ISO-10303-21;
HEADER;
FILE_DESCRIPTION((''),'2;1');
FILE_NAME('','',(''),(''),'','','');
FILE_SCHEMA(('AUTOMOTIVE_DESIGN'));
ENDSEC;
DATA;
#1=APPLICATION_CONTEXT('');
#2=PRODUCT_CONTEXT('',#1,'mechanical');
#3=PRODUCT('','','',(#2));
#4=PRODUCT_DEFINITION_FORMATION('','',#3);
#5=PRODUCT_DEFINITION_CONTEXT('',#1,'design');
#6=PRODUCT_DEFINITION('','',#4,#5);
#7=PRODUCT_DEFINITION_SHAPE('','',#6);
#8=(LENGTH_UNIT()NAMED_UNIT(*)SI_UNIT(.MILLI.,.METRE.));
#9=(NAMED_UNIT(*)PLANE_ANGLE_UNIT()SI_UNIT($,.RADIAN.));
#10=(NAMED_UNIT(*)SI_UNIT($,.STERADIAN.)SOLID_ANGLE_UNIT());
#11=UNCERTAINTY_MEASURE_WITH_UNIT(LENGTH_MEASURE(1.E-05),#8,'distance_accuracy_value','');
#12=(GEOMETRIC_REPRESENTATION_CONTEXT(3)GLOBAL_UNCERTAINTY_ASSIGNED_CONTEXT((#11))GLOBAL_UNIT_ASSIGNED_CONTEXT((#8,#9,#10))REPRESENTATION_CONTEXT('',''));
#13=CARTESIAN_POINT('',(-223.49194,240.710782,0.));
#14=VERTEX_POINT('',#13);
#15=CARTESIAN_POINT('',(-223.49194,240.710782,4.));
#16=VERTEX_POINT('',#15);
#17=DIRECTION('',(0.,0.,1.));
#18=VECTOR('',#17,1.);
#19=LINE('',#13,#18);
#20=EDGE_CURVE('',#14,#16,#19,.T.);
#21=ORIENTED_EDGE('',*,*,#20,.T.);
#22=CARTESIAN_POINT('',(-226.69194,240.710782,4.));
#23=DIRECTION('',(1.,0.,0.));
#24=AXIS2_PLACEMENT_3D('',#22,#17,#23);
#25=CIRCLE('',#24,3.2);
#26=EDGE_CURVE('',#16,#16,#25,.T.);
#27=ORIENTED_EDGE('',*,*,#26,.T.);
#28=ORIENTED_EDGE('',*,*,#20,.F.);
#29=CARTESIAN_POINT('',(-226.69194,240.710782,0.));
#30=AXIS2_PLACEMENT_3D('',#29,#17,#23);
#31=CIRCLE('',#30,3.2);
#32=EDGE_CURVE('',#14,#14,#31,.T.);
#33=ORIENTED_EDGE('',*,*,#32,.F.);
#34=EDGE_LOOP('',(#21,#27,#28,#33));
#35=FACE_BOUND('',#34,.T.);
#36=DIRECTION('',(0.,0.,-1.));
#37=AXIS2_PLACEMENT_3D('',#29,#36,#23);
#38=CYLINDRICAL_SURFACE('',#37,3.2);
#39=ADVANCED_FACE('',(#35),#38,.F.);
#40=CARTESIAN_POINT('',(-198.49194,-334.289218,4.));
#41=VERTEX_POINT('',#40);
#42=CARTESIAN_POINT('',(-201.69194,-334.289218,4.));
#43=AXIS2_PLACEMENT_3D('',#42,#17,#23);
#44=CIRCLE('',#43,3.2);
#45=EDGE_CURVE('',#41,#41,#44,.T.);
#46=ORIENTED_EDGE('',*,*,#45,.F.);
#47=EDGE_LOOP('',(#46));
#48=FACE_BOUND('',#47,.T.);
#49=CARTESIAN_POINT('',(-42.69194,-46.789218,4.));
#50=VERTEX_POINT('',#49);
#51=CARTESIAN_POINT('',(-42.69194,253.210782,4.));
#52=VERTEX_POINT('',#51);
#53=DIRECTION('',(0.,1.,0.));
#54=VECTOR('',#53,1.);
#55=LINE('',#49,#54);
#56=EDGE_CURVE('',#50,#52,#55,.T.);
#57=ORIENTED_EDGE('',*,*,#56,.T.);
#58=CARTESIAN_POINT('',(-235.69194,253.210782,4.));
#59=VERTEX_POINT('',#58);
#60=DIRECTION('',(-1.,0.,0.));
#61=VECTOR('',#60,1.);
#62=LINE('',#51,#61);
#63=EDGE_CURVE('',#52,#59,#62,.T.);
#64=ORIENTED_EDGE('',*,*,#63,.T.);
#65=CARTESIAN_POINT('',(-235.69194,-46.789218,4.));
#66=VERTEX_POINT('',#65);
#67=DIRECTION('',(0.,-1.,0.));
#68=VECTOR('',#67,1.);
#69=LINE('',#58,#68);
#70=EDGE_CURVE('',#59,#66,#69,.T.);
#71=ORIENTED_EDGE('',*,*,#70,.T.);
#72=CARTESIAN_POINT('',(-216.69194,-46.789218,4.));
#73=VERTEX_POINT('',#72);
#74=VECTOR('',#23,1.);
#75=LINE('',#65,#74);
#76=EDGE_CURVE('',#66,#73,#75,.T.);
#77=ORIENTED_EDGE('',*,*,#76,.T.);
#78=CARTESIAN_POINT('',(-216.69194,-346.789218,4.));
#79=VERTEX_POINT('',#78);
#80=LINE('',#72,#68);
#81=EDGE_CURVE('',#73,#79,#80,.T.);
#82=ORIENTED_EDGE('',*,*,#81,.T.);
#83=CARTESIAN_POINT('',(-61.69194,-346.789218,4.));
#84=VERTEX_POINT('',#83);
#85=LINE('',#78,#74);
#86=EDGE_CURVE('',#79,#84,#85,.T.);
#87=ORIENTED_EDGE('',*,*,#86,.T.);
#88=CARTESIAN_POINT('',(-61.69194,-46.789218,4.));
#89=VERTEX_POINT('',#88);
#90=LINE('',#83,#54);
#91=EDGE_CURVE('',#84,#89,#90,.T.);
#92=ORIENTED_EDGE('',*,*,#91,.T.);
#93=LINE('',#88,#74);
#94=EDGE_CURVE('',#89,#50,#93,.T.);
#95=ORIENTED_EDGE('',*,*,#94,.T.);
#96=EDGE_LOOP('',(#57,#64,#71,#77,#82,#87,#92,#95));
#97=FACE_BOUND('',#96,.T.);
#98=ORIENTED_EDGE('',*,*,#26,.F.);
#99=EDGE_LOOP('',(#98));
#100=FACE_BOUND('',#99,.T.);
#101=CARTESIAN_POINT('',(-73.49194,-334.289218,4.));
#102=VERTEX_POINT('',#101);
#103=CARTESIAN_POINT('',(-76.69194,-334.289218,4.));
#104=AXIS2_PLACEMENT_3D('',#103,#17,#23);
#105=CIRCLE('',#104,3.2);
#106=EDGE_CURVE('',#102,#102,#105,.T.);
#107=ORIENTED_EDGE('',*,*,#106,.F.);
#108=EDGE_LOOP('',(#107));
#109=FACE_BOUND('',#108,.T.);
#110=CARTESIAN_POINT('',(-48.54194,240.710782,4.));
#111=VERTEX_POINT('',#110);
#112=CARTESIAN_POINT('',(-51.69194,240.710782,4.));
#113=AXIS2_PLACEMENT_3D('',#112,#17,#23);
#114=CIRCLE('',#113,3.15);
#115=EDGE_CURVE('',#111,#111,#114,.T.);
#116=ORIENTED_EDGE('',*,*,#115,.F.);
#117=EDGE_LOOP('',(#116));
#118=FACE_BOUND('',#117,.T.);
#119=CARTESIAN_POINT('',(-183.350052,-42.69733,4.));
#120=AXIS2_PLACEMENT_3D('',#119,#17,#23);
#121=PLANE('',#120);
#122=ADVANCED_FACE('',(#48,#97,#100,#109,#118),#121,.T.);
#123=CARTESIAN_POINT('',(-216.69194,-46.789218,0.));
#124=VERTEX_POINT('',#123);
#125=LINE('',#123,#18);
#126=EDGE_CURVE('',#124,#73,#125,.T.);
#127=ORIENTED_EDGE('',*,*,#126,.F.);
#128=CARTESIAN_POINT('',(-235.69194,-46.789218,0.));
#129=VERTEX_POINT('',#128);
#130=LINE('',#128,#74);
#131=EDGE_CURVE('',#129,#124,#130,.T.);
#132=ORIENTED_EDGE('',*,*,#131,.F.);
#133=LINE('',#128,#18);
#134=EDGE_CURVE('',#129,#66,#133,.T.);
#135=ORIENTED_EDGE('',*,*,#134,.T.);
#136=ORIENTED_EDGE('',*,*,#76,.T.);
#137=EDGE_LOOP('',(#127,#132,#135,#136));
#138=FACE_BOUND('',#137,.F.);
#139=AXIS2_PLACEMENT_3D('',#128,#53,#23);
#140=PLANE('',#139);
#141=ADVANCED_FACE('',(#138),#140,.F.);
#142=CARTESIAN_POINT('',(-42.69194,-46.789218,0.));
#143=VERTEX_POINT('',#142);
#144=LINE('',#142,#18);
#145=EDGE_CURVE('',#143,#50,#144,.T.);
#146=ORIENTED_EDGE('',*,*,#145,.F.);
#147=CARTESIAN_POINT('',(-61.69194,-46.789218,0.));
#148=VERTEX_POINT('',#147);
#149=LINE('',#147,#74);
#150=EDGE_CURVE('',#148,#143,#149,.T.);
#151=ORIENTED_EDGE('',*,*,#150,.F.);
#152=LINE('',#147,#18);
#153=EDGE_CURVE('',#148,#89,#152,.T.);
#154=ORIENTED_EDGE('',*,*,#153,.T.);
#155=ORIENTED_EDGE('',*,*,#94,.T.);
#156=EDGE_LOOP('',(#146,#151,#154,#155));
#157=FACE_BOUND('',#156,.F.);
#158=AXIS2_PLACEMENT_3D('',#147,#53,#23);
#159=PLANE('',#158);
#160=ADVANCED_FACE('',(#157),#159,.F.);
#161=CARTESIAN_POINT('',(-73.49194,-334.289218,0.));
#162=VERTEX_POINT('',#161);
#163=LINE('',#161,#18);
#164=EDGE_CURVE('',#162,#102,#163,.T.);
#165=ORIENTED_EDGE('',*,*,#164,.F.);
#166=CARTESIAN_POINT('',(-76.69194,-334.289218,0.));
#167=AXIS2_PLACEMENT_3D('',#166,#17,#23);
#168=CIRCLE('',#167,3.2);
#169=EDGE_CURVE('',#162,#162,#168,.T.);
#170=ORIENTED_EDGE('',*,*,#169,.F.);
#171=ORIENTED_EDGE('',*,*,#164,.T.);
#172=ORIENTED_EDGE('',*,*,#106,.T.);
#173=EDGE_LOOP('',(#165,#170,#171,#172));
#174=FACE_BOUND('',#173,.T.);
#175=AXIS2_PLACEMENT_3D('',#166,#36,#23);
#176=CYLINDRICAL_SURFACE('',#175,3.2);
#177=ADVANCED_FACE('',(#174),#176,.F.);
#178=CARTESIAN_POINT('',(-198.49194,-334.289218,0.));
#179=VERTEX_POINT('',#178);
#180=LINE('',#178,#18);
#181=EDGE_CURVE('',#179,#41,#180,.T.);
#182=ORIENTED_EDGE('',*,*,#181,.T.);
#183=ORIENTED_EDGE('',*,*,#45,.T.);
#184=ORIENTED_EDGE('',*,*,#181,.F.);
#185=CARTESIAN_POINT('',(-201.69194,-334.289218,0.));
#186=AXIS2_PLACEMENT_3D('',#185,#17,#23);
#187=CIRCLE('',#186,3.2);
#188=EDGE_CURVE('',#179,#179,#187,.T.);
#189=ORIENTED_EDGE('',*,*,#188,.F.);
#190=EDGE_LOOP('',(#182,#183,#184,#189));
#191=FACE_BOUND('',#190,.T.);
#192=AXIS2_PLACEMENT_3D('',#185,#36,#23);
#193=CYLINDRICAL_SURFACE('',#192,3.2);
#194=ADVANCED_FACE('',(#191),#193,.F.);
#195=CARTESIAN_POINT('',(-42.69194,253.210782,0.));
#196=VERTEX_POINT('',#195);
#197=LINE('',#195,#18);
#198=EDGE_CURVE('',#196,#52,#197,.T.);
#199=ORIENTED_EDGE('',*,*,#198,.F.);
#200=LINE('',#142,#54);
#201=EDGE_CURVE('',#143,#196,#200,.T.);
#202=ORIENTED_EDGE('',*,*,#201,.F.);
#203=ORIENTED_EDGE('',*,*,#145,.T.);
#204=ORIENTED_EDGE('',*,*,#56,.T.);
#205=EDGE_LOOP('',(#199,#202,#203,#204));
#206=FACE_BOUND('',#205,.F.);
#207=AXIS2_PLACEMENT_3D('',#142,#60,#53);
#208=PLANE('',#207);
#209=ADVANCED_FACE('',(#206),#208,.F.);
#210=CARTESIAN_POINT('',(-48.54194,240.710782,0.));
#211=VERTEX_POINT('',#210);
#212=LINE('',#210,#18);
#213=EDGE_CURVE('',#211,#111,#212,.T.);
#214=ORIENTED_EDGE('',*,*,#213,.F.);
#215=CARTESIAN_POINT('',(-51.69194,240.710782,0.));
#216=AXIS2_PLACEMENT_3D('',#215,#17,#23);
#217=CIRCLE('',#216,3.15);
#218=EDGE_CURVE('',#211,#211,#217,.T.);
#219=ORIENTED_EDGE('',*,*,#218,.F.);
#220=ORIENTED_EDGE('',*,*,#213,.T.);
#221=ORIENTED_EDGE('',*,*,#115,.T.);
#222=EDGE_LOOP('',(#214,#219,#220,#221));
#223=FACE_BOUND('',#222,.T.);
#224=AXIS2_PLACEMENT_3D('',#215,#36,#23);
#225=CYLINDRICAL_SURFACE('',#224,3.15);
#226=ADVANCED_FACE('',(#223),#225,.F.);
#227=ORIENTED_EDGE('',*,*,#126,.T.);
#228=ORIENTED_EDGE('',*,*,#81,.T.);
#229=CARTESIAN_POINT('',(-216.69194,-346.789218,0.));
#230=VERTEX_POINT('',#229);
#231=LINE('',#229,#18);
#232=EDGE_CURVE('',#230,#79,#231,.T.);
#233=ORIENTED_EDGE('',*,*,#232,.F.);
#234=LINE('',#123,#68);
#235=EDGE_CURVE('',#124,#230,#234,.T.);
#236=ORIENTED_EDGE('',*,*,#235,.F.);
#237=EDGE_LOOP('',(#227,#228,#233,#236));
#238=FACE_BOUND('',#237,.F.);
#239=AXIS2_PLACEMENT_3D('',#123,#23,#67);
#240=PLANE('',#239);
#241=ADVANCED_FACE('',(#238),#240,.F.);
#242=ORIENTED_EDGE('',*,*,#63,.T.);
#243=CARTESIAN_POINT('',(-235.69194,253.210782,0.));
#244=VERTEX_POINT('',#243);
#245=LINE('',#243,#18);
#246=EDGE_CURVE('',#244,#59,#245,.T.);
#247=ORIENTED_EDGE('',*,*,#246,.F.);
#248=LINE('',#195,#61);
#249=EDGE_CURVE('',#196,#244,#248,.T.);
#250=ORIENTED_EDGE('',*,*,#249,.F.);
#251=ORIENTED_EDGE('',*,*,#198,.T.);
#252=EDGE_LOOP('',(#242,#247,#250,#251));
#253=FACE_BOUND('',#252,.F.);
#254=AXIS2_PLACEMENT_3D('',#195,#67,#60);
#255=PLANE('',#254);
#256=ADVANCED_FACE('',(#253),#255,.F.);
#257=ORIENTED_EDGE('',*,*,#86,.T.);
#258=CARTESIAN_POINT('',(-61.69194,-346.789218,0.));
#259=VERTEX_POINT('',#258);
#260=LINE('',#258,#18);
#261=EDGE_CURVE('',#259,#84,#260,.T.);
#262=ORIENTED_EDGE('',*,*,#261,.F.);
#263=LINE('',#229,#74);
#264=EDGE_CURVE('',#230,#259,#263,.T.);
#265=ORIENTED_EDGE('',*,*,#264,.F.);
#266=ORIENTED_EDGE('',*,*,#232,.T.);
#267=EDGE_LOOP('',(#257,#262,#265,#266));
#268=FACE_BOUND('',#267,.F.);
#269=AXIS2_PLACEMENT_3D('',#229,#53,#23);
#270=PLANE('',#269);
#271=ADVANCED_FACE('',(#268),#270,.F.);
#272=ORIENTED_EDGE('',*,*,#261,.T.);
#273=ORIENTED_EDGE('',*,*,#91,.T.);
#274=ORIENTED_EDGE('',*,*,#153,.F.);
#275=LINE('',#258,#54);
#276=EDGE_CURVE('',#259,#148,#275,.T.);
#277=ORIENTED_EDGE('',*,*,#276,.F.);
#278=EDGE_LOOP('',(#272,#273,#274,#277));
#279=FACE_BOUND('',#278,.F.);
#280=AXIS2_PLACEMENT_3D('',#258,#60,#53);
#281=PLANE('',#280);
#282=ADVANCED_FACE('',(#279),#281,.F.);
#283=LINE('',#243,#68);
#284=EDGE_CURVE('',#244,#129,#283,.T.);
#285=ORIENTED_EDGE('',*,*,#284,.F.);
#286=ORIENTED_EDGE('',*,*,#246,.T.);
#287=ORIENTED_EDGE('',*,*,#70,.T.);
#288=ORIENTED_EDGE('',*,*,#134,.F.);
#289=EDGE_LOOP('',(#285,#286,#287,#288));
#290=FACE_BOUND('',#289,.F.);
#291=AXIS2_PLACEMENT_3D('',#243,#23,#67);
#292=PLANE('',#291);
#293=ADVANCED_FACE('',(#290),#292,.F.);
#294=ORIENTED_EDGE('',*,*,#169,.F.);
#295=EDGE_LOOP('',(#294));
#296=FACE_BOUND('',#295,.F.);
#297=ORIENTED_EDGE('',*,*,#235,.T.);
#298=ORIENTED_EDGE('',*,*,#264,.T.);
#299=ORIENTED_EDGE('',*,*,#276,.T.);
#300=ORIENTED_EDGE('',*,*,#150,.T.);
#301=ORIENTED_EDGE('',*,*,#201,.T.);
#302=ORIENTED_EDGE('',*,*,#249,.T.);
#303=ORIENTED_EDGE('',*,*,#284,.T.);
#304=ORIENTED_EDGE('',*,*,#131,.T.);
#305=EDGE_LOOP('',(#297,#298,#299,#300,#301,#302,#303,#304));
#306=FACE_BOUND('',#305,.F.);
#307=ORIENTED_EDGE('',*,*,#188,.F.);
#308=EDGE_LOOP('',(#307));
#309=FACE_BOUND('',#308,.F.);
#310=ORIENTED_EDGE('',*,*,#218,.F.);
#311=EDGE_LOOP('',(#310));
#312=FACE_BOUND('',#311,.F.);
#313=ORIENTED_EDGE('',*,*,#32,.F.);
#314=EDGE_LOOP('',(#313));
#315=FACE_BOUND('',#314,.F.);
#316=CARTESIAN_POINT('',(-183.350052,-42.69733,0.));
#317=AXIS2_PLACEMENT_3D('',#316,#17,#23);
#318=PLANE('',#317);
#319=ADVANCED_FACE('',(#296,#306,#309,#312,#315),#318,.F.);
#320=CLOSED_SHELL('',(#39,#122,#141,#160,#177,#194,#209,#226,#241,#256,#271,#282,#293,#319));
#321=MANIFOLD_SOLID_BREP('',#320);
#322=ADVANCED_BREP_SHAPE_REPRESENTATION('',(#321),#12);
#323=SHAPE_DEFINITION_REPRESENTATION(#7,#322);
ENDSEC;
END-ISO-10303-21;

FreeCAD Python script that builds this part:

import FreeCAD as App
import Part
import Sketcher

V = App.Vector

doc = App.newDocument("Part")
body = doc.addObject("PartDesign::Body", "Body")

# Sketch on XY plane
sketch1 = doc.addObject("Sketcher::SketchObject", "Sketch")
body.addObject(sketch1)
sketch1.AttachmentSupport = (doc.XY_Plane, [""])
sketch1.MapMode = "FlatFace"
sketch1.addGeometry(Part.LineSegment(V(-235.7, 253.2, 0), V(-235.7, -46.8, 0)), False)
sketch1.addGeometry(Part.LineSegment(V(-235.7, -46.8, 0), V(-216.7, -46.8, 0)), False)
sketch1.addGeometry(Part.LineSegment(V(-216.7, -46.8, 0), V(-216.7, -346.8, 0)), False)
sketch1.addGeometry(Part.LineSegment(V(-216.7, -346.8, 0), V(-61.7, -346.8, 0)), False)
sketch1.addGeometry(Part.LineSegment(V(-61.7, -346.8, 0), V(-61.7, -46.8, 0)), False)
sketch1.addGeometry(Part.LineSegment(V(-61.7, -46.8, 0), V(-42.7, -46.8, 0)), False)
sketch1.addGeometry(Part.LineSegment(V(-42.7, -46.8, 0), V(-42.7, 253.2, 0)), False)
sketch1.addGeometry(Part.LineSegment(V(-42.7, 253.2, 0), V(-235.7, 253.2, 0)), False)
sketch1.addGeometry(Part.Circle(V(-201.7, -334.3, 0), V(0, 0, 1), 3.2), False)
sketch1.addGeometry(Part.Circle(V(-76.7, -334.3, 0), V(0, 0, 1), 3.2), False)
sketch1.addGeometry(Part.Circle(V(-226.7, 240.7, 0), V(0, 0, 1), 3.2), False)
sketch1.addGeometry(Part.Circle(V(-51.7, 240.7, 0), V(0, 0, 1), 3.1), False)
sketch1.addConstraint(Sketcher.Constraint("Coincident", 0, 2, 1, 1))
sketch1.addConstraint(Sketcher.Constraint("Coincident", 1, 2, 2, 1))
sketch1.addConstraint(Sketcher.Constraint("Coincident", 2, 2, 3, 1))
sketch1.addConstraint(Sketcher.Constraint("Coincident", 3, 2, 4, 1))
sketch1.addConstraint(Sketcher.Constraint("Coincident", 4, 2, 5, 1))
sketch1.addConstraint(Sketcher.Constraint("Coincident", 5, 2, 6, 1))
sketch1.addConstraint(Sketcher.Constraint("Coincident", 6, 2, 7, 1))
sketch1.addConstraint(Sketcher.Constraint("Coincident", 7, 2, 0, 1))
sketch1.addConstraint(Sketcher.Constraint("Vertical", 0))
sketch1.addConstraint(Sketcher.Constraint("Horizontal", 1))
sketch1.addConstraint(Sketcher.Constraint("Vertical", 2))
sketch1.addConstraint(Sketcher.Constraint("Horizontal", 3))
sketch1.addConstraint(Sketcher.Constraint("Vertical", 4))
sketch1.addConstraint(Sketcher.Constraint("Horizontal", 5))
sketch1.addConstraint(Sketcher.Constraint("Vertical", 6))
sketch1.addConstraint(Sketcher.Constraint("Horizontal", 7))
sketch1.addConstraint(Sketcher.Constraint("Equal", 8, 9))
sketch1.addConstraint(Sketcher.Constraint("Equal", 9, 10))
sketch1.addConstraint(Sketcher.Constraint("Horizontal", 8, 3, 9, 3))
sketch1.addConstraint(Sketcher.Constraint("Horizontal", 10, 3, 11, 3))
sketch1.addConstraint(Sketcher.Constraint("Horizontal", 1, 2, 4, 2))
sketch1.addConstraint(Sketcher.Constraint("Equal", 1, 5))
sketch1.addConstraint(Sketcher.Constraint("Equal", 0, 2))
sketch1.addConstraint(Sketcher.Constraint("Diameter", 8, 6.4))
sketch1.addConstraint(Sketcher.Constraint("Diameter", 11, 6.3))
sketch1.addConstraint(Sketcher.Constraint("DistanceX", 1, 1, 1, 2, 19.0))
sketch1.addConstraint(Sketcher.Constraint("DistanceX", 3, 1, 3, 2, 155.0))
sketch1.addConstraint(Sketcher.Constraint("DistanceY", 0, 2, 0, 1, 300.0))
sketch1.addConstraint(Sketcher.Constraint("DistanceX", 8, 3, 9, 3, 125.0))
sketch1.addConstraint(Sketcher.Constraint("DistanceX", 10, 3, 8, 3, 25.0))
sketch1.addConstraint(Sketcher.Constraint("DistanceY", 8, 3, 10, 3, 575.0))
sketch1.addConstraint(Sketcher.Constraint("DistanceX", 10, 3, 11, 3, 175.0))
sketch1.addConstraint(Sketcher.Constraint("DistanceX", 0, 2, 10, 3, 9.0))
sketch1.addConstraint(Sketcher.Constraint("DistanceY", 0, 2, 10, 3, 287.5))
sketch1.addConstraint(Sketcher.Constraint("DistanceX", 8, 3, -1, 1, 201.69194))
sketch1.addConstraint(Sketcher.Constraint("DistanceY", 8, 3, -1, 1, 334.289218))
pad1 = doc.addObject("PartDesign::Pad", "Pad")
body.addObject(pad1)
pad1.Profile = sketch1
pad1.Length = 4

doc.recompute()
